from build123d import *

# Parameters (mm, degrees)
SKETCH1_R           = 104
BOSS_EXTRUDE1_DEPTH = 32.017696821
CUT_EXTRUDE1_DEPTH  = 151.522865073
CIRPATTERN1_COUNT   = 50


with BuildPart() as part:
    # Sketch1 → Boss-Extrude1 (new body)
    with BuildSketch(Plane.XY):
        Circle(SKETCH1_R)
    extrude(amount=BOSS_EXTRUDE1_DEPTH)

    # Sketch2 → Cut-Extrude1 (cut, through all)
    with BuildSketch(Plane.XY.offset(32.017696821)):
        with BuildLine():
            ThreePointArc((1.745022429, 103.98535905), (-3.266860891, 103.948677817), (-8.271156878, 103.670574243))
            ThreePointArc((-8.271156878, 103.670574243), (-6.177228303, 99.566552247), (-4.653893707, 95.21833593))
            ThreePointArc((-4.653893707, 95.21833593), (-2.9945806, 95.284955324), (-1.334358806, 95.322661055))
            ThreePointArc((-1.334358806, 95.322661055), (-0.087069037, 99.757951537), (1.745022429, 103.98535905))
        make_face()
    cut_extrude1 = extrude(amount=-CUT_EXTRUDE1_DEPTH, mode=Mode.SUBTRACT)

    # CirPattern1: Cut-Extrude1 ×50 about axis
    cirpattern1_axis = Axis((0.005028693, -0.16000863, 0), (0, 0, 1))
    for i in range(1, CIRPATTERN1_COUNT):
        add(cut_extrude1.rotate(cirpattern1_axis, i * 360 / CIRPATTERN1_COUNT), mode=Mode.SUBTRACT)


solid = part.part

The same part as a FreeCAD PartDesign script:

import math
import FreeCAD as App
import Part
import Sketcher
Q = App.Units.Quantity

doc = App.newDocument("Part")
body = doc.addObject("PartDesign::Body", "Body")

sketch1 = body.newObject("Sketcher::SketchObject", "Sketch")
sketch1.AttachmentSupport = (doc.getObject("XY_Plane"), [""])
sketch1.MapMode = "FlatFace"
sketch1.addGeometry(Part.Circle(App.Vector(0, 0, 0), App.Vector(0, 0, 1), 104), False)
sketch1.addConstraint([
    Sketcher.Constraint("Coincident", 0, 3, -1, 1),
    Sketcher.Constraint("Diameter", 0, Q("208 mm")),
])
pad1 = body.newObject("PartDesign::Pad", "Pad")
pad1.Profile = sketch1
pad1.Length = 32.017697

sketch2 = body.newObject("Sketcher::SketchObject", "Sketch001")
sketch2.AttachmentSupport = (doc.getObject("XY_Plane"), [""])
sketch2.MapMode = "FlatFace"
sketch2.AttachmentOffset = App.Placement(App.Vector(0, 0, 32.017697), App.Rotation())
sketch2.addGeometry([
    Part.ArcOfCircle(Part.Circle(App.Vector(0, 0, 0), App.Vector(0, 0, 1), 104), math.radians(89.038585), math.radians(94.561571)),
    Part.ArcOfCircle(Part.Circle(App.Vector(-37.620738, 86.109827, 0), App.Vector(0, 0, 1), 34.202014), math.radians(15.445104), math.radians(30.893367)),
    Part.ArcOfCircle(Part.Circle(App.Vector(0, 0.000003, 0), App.Vector(0, 0, 1), 95.331997), math.radians(90.801993), math.radians(92.798163)),
    Part.ArcOfCircle(Part.Circle(App.Vector(32.139381, 88.302222, 0), App.Vector(0, 0, 1), 34.202014), math.radians(152.70679), math.radians(168.155052)),
], False)
sketch2.addConstraint([
    Sketcher.Constraint("Coincident", 0, 2, 1, 2),
    Sketcher.Constraint("Coincident", 1, 1, 2, 2),
    Sketcher.Constraint("Coincident", 2, 1, 3, 2),
    Sketcher.Constraint("Coincident", 3, 1, 0, 1),
    Sketcher.Constraint("Coincident", 0, 3, -1, 1),
    Sketcher.Constraint("Coincident", 2, 3, -1, 1),
    Sketcher.Constraint("Equal", 1, 3),
    Sketcher.Constraint("Radius", 0, Q("104 mm")),
    Sketcher.Constraint("Radius", 1, Q("34.202014 mm")),
    Sketcher.Constraint("Radius", 2, Q("95.331997 mm")),
    Sketcher.Constraint("DistanceX", 0, 2, 2, 1, Q("6.936798 mm")),
    Sketcher.Constraint("DistanceX", 1, 3, -1, 1, Q("37.620738 mm")),
    Sketcher.Constraint("DistanceX", -1, 1, 3, 3, Q("32.139381 mm")),
    Sketcher.Constraint("DistanceX", 2, 1, -1, 1, Q("1.334359 mm")),
])
pocket1 = body.newObject("PartDesign::Pocket", "Pocket")
pocket1.Profile = sketch2
pocket1.Type = "ThroughAll"
doc.recompute()

datumline = body.newObject("PartDesign::Line", "DatumLine")
datumline.Placement = App.Placement(App.Vector(0.005029, -0.160009, 0), App.Rotation(App.Vector(0, 0, 1), App.Vector(0, 0, 1)))
polarpattern = body.newObject("PartDesign::PolarPattern", "PolarPattern")
polarpattern.Originals = [pocket1]
polarpattern.Axis = (datumline, [""])
polarpattern.Angle = 360
polarpattern.Occurrences = 50
body.Tip = polarpattern

doc.recompute()
